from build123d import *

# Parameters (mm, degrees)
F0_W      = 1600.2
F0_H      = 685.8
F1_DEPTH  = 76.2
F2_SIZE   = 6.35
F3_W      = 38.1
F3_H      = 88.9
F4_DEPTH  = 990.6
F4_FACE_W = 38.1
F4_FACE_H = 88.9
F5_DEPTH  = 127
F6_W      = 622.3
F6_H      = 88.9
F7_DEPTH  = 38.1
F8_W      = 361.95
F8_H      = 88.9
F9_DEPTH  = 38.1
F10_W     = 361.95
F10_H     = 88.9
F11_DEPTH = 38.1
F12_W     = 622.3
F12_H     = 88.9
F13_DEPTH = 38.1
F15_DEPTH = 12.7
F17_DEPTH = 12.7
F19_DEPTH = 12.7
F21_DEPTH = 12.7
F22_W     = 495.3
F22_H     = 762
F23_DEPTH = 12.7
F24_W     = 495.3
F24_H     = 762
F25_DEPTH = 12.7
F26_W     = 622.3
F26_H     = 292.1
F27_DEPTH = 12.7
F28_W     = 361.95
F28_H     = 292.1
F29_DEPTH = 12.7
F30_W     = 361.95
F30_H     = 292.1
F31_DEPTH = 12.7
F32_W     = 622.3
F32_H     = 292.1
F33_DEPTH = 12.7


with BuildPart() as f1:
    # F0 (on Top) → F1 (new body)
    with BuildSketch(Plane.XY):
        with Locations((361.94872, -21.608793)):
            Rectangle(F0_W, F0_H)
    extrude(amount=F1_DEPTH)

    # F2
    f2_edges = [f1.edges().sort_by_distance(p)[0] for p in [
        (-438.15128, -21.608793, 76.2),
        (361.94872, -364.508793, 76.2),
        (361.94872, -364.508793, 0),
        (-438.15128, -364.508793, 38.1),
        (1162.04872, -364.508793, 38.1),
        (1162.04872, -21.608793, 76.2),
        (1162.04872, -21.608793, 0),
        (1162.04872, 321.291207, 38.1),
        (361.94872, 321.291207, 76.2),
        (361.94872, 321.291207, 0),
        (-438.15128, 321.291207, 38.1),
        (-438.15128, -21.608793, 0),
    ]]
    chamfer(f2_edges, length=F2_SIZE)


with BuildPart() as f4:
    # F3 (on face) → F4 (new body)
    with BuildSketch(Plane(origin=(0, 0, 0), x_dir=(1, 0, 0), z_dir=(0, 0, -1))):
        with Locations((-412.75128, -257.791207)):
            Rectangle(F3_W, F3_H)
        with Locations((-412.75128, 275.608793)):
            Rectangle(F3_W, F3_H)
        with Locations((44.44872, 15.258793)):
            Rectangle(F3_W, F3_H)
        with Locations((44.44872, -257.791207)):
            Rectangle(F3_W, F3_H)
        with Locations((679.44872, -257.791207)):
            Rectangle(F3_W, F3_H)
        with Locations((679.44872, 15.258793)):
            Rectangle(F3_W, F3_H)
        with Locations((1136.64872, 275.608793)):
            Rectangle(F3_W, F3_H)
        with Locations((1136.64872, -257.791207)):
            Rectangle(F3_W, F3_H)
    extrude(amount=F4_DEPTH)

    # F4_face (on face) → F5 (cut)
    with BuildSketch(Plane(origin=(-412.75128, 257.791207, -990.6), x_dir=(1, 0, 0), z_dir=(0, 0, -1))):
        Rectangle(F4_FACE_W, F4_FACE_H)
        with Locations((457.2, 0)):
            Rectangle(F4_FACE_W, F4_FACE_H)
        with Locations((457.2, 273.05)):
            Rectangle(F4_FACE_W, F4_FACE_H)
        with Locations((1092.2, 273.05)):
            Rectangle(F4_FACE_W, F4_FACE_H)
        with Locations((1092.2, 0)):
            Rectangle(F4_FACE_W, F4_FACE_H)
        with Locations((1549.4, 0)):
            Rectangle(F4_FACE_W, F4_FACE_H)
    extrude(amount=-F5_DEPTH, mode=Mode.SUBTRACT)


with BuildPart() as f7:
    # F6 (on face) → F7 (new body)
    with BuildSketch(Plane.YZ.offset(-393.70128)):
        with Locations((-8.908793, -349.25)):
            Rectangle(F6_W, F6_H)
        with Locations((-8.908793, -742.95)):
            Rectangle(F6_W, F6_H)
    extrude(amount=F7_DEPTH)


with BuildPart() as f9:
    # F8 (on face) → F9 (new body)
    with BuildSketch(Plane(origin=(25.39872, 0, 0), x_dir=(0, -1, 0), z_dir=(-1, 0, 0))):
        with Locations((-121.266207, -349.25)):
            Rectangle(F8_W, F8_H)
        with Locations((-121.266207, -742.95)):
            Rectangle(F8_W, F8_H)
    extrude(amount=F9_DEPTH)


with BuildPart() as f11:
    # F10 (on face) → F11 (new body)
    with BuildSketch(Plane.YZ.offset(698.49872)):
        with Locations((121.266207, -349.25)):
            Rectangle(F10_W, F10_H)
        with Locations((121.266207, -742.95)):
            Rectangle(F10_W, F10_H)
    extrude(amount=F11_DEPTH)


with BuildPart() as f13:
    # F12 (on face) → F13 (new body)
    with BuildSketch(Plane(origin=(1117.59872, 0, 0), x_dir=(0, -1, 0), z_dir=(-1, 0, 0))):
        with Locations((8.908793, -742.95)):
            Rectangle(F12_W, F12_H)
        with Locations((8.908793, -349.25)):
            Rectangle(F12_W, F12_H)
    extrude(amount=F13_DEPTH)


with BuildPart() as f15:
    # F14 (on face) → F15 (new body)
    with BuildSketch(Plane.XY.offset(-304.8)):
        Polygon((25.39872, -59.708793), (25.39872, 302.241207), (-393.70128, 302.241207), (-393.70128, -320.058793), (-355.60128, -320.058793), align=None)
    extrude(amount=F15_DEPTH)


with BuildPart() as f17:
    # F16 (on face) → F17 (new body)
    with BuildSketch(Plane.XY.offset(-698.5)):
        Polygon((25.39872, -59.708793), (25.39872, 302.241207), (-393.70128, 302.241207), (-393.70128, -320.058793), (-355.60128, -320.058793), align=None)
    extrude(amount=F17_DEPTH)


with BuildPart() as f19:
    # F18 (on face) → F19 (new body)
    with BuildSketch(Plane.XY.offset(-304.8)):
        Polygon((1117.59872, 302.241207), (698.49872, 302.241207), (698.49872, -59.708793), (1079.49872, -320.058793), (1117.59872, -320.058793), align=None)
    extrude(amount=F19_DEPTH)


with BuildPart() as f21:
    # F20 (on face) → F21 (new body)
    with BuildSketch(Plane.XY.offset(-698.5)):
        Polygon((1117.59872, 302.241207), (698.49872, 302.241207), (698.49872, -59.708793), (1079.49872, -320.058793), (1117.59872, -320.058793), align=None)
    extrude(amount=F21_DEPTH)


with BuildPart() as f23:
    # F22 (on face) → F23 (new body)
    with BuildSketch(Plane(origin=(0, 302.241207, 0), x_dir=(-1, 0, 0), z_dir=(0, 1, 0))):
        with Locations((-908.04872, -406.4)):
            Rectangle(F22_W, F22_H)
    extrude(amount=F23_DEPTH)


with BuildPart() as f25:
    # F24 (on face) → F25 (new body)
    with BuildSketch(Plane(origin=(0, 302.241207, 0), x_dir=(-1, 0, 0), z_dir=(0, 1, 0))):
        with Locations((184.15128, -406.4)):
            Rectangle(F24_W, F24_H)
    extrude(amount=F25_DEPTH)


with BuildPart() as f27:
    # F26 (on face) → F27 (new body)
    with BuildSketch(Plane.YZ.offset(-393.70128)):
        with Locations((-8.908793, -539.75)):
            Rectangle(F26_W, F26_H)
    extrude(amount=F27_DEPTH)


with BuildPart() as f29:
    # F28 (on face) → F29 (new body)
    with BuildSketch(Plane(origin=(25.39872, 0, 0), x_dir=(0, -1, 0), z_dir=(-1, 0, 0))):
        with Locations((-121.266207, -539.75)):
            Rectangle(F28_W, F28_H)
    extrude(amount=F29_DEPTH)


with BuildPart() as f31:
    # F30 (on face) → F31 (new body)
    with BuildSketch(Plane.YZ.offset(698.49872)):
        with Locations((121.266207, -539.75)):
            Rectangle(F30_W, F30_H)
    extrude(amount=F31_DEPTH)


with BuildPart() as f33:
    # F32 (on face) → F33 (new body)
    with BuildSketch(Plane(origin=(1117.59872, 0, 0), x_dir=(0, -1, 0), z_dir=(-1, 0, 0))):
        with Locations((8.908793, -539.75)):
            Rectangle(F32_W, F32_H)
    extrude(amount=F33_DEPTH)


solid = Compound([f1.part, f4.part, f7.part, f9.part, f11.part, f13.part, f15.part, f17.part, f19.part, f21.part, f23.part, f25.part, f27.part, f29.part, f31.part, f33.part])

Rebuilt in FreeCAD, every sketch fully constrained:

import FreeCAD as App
import Part
import Sketcher
Q = App.Units.Quantity

doc = App.newDocument("Part")
body = doc.addObject("PartDesign::Body", "Body")

# Sketch on XY plane
sketch1 = doc.addObject("Sketcher::SketchObject", "Sketch")
body.addObject(sketch1)
sketch1.AttachmentSupport = (doc.XY_Plane, [""])
sketch1.MapMode = "FlatFace"
sketch1.addGeometry(Part.LineSegment(App.Vector(-438, 321, 0), App.Vector(-438, -365, 0)), False)
sketch1.addGeometry(Part.LineSegment(App.Vector(-438, -365, 0), App.Vector(1162, -365, 0)), False)
sketch1.addGeometry(Part.LineSegment(App.Vector(1162, -365, 0), App.Vector(1162, 321, 0)), False)
sketch1.addGeometry(Part.LineSegment(App.Vector(1162, 321, 0), App.Vector(-438, 321, 0)), False)
sketch1.addConstraint(Sketcher.Constraint("Coincident", 0, 2, 1, 1))
sketch1.addConstraint(Sketcher.Constraint("Coincident", 1, 2, 2, 1))
sketch1.addConstraint(Sketcher.Constraint("Coincident", 2, 2, 3, 1))
sketch1.addConstraint(Sketcher.Constraint("Coincident", 3, 2, 0, 1))
sketch1.addConstraint(Sketcher.Constraint("Vertical", 0))
sketch1.addConstraint(Sketcher.Constraint("Horizontal", 1))
sketch1.addConstraint(Sketcher.Constraint("Vertical", 2))
sketch1.addConstraint(Sketcher.Constraint("Horizontal", 3))
sketch1.addConstraint(Sketcher.Constraint("DistanceX", 1, 1, 1, 2, Q("63 in")))
sketch1.addConstraint(Sketcher.Constraint("DistanceY", 0, 2, 0, 1, Q("27 in")))
sketch1.addConstraint(Sketcher.Constraint("DistanceX", 0, 2, -1, 1, 438.15128))
sketch1.addConstraint(Sketcher.Constraint("DistanceY", 0, 2, -1, 1, 364.508793))
pad1 = doc.addObject("PartDesign::Pad", "Pad")
body.addObject(pad1)
pad1.Profile = sketch1
pad1.Length = Q("3 in")
doc.recompute()

chamfer = doc.addObject("PartDesign::Chamfer", "Chamfer")
body.addObject(chamfer)
chamfer.Base = (pad1, ["Edge1"])
chamfer.UseAllEdges = True
chamfer.Size = Q("0.25 in")
body2 = doc.addObject("PartDesign::Body", "Body001")
body2.AllowCompound = True

# Sketch on XY plane
sketch2 = doc.addObject("Sketcher::SketchObject", "Sketch001")
body2.addObject(sketch2)
sketch2.AttachmentSupport = (doc.getObject("XY_Plane001"), [""])
sketch2.MapMode = "FlatFace"
sketch2.addGeometry(Part.LineSegment(App.Vector(-432, 213, 0), App.Vector(-432, 302, 0)), False)
sketch2.addGeometry(Part.LineSegment(App.Vector(-432, 302, 0), App.Vector(-394, 302, 0)), False)
sketch2.addGeometry(Part.LineSegment(App.Vector(-394, 302, 0), App.Vector(-394, 213, 0)), False)
sketch2.addGeometry(Part.LineSegment(App.Vector(-394, 213, 0), App.Vector(-432, 213, 0)), False)
sketch2.addGeometry(Part.LineSegment(App.Vector(-432, -320, 0), App.Vector(-432, -231, 0)), False)
sketch2.addGeometry(Part.LineSegment(App.Vector(-432, -231, 0), App.Vector(-394, -231, 0)), False)
sketch2.addGeometry(Part.LineSegment(App.Vector(-394, -231, 0), App.Vector(-394, -320, 0)), False)
sketch2.addGeometry(Part.LineSegment(App.Vector(-394, -320, 0), App.Vector(-432, -320, 0)), False)
sketch2.addGeometry(Part.LineSegment(App.Vector(25, -60, 0), App.Vector(25, 29, 0)), False)
sketch2.addGeometry(Part.LineSegment(App.Vector(25, 29, 0), App.Vector(63, 29, 0)), False)
sketch2.addGeometry(Part.LineSegment(App.Vector(63, 29, 0), App.Vector(63, -60, 0)), False)
sketch2.addGeometry(Part.LineSegment(App.Vector(63, -60, 0), App.Vector(25, -60, 0)), False)
sketch2.addGeometry(Part.LineSegment(App.Vector(25, 213, 0), App.Vector(25, 302, 0)), False)
sketch2.addGeometry(Part.LineSegment(App.Vector(25, 302, 0), App.Vector(63, 302, 0)), False)
sketch2.addGeometry(Part.LineSegment(App.Vector(63, 302, 0), App.Vector(63, 213, 0)), False)
sketch2.addGeometry(Part.LineSegment(App.Vector(63, 213, 0), App.Vector(25, 213, 0)), False)
sketch2.addGeometry(Part.LineSegment(App.Vector(660, 213, 0), App.Vector(660, 302, 0)), False)
sketch2.addGeometry(Part.LineSegment(App.Vector(660, 302, 0), App.Vector(698, 302, 0)), False)
sketch2.addGeometry(Part.LineSegment(App.Vector(698, 302, 0), App.Vector(698, 213, 0)), False)
sketch2.addGeometry(Part.LineSegment(App.Vector(698, 213, 0), App.Vector(660, 213, 0)), False)
sketch2.addGeometry(Part.LineSegment(App.Vector(660, -60, 0), App.Vector(660, 29, 0)), False)
sketch2.addGeometry(Part.LineSegment(App.Vector(660, 29, 0), App.Vector(698, 29, 0)), False)
sketch2.addGeometry(Part.LineSegment(App.Vector(698, 29, 0), App.Vector(698, -60, 0)), False)
sketch2.addGeometry(Part.LineSegment(App.Vector(698, -60, 0), App.Vector(660, -60, 0)), False)
sketch2.addGeometry(Part.LineSegment(App.Vector(1118, -320, 0), App.Vector(1118, -231, 0)), False)
sketch2.addGeometry(Part.LineSegment(App.Vector(1118, -231, 0), App.Vector(1156, -231, 0)), False)
sketch2.addGeometry(Part.LineSegment(App.Vector(1156, -231, 0), App.Vector(1156, -320, 0)), False)
sketch2.addGeometry(Part.LineSegment(App.Vector(1156, -320, 0), App.Vector(1118, -320, 0)), False)
sketch2.addGeometry(Part.LineSegment(App.Vector(1118, 213, 0), App.Vector(1118, 302, 0)), False)
sketch2.addGeometry(Part.LineSegment(App.Vector(1118, 302, 0), App.Vector(1156, 302, 0)), False)
sketch2.addGeometry(Part.LineSegment(App.Vector(1156, 302, 0), App.Vector(1156, 213, 0)), False)
sketch2.addGeometry(Part.LineSegment(App.Vector(1156, 213, 0), App.Vector(1118, 213, 0)), False)
sketch2.addConstraint(Sketcher.Constraint("Coincident", 0, 2, 1, 1))
sketch2.addConstraint(Sketcher.Constraint("Coincident", 1, 2, 2, 1))
sketch2.addConstraint(Sketcher.Constraint("Coincident", 2, 2, 3, 1))
sketch2.addConstraint(Sketcher.Constraint("Coincident", 3, 2, 0, 1))
sketch2.addConstraint(Sketcher.Constraint("Coincident", 4, 2, 5, 1))
sketch2.addConstraint(Sketcher.Constraint("Coincident", 5, 2, 6, 1))
sketch2.addConstraint(Sketcher.Constraint("Coincident", 6, 2, 7, 1))
sketch2.addConstraint(Sketcher.Constraint("Coincident", 7, 2, 4, 1))
sketch2.addConstraint(Sketcher.Constraint("Coincident", 8, 2, 9, 1))
sketch2.addConstraint(Sketcher.Constraint("Coincident", 9, 2, 10, 1))
sketch2.addConstraint(Sketcher.Constraint("Coincident", 10, 2, 11, 1))
sketch2.addConstraint(Sketcher.Constraint("Coincident", 11, 2, 8, 1))
sketch2.addConstraint(Sketcher.Constraint("Coincident", 12, 2, 13, 1))
sketch2.addConstraint(Sketcher.Constraint("Coincident", 13, 2, 14, 1))
sketch2.addConstraint(Sketcher.Constraint("Coincident", 14, 2, 15, 1))
sketch2.addConstraint(Sketcher.Constraint("Coincident", 15, 2, 12, 1))
sketch2.addConstraint(Sketcher.Constraint("Coincident", 16, 2, 17, 1))
sketch2.addConstraint(Sketcher.Constraint("Coincident", 17, 2, 18, 1))
sketch2.addConstraint(Sketcher.Constraint("Coincident", 18, 2, 19, 1))
sketch2.addConstraint(Sketcher.Constraint("Coincident", 19, 2, 16, 1))
sketch2.addConstraint(Sketcher.Constraint("Coincident", 20, 2, 21, 1))
sketch2.addConstraint(Sketcher.Constraint("Coincident", 21, 2, 22, 1))
sketch2.addConstraint(Sketcher.Constraint("Coincident", 22, 2, 23, 1))
sketch2.addConstraint(Sketcher.Constraint("Coincident", 23, 2, 20, 1))
sketch2.addConstraint(Sketcher.Constraint("Coincident", 24, 2, 25, 1))
sketch2.addConstraint(Sketcher.Constraint("Coincident", 25, 2, 26, 1))
sketch2.addConstraint(Sketcher.Constraint("Coincident", 26, 2, 27, 1))
sketch2.addConstraint(Sketcher.Constraint("Coincident", 27, 2, 24, 1))
sketch2.addConstraint(Sketcher.Constraint("Coincident", 28, 2, 29, 1))
sketch2.addConstraint(Sketcher.Constraint("Coincident", 29, 2, 30, 1))
sketch2.addConstraint(Sketcher.Constraint("Coincident", 30, 2, 31, 1))
sketch2.addConstraint(Sketcher.Constraint("Coincident", 31, 2, 28, 1))
sketch2.addConstraint(Sketcher.Constraint("Vertical", 0))
sketch2.addConstraint(Sketcher.Constraint("Horizontal", 1))
sketch2.addConstraint(Sketcher.Constraint("Vertical", 2))
sketch2.addConstraint(Sketcher.Constraint("Horizontal", 3))
sketch2.addConstraint(Sketcher.Constraint("Vertical", 4))
sketch2.addConstraint(Sketcher.Constraint("Horizontal", 5))
sketch2.addConstraint(Sketcher.Constraint("Vertical", 6))
sketch2.addConstraint(Sketcher.Constraint("Horizontal", 7))
sketch2.addConstraint(Sketcher.Constraint("Vertical", 8))
sketch2.addConstraint(Sketcher.Constraint("Horizontal", 9))
sketch2.addConstraint(Sketcher.Constraint("Vertical", 10))
sketch2.addConstraint(Sketcher.Constraint("Horizontal", 11))
sketch2.addConstraint(Sketcher.Constraint("Vertical", 12))
sketch2.addConstraint(Sketcher.Constraint("Horizontal", 13))
sketch2.addConstraint(Sketcher.Constraint("Vertical", 14))
sketch2.addConstraint(Sketcher.Constraint("Horizontal", 15))
sketch2.addConstraint(Sketcher.Constraint("Vertical", 16))
sketch2.addConstraint(Sketcher.Constraint("Horizontal", 17))
sketch2.addConstraint(Sketcher.Constraint("Vertical", 18))
sketch2.addConstraint(Sketcher.Constraint("Horizontal", 19))
sketch2.addConstraint(Sketcher.Constraint("Vertical", 20))
sketch2.addConstraint(Sketcher.Constraint("Horizontal", 21))
sketch2.addConstraint(Sketcher.Constraint("Vertical", 22))
sketch2.addConstraint(Sketcher.Constraint("Horizontal", 23))
sketch2.addConstraint(Sketcher.Constraint("Vertical", 24))
sketch2.addConstraint(Sketcher.Constraint("Horizontal", 25))
sketch2.addConstraint(Sketcher.Constraint("Vertical", 26))
sketch2.addConstraint(Sketcher.Constraint("Horizontal", 27))
sketch2.addConstraint(Sketcher.Constraint("Vertical", 28))
sketch2.addConstraint(Sketcher.Constraint("Horizontal", 29))
sketch2.addConstraint(Sketcher.Constraint("Vertical", 30))
sketch2.addConstraint(Sketcher.Constraint("Horizontal", 31))
sketch2.addConstraint(Sketcher.Constraint("Horizontal", 1, 2, 12, 2))
sketch2.addConstraint(Sketcher.Constraint("Horizontal", 3, 2, 14, 2))
sketch2.addConstraint(Sketcher.Constraint("Horizontal", 13, 2, 16, 2))
sketch2.addConstraint(Sketcher.Constraint("Horizontal", 15, 2, 18, 2))
sketch2.addConstraint(Sketcher.Constraint("Horizontal", 9, 2, 20, 2))
sketch2.addConstraint(Sketcher.Constraint("Horizontal", 11, 2, 22, 2))
sketch2.addConstraint(Sketcher.Constraint("Horizontal", 5, 2, 24, 2))
sketch2.addConstraint(Sketcher.Constraint("Horizontal", 7, 2, 26, 2))
sketch2.addConstraint(Sketcher.Constraint("Horizontal", 17, 2, 28, 2))
sketch2.addConstraint(Sketcher.Constraint("Horizontal", 19, 2, 30, 2))
sketch2.addConstraint(Sketcher.Constraint("Vertical", 3, 2, 4, 2))
sketch2.addConstraint(Sketcher.Constraint("Vertical", 2, 2, 5, 2))
sketch2.addConstraint(Sketcher.Constraint("Vertical", 11, 2, 12, 2))
sketch2.addConstraint(Sketcher.Constraint("Vertical", 10, 2, 13, 2))
sketch2.addConstraint(Sketcher.Constraint("Vertical", 19, 2, 20, 2))
sketch2.addConstraint(Sketcher.Constraint("Vertical", 18, 2, 21, 2))
sketch2.addConstraint(Sketcher.Constraint("Vertical", 27, 2, 28, 2))
sketch2.addConstraint(Sketcher.Constraint("Vertical", 26, 2, 29, 2))
sketch2.addConstraint(Sketcher.Constraint("Equal", 7, 9))
sketch2.addConstraint(Sketcher.Constraint("Equal", 15, 17))
sketch2.addConstraint(Sketcher.Constraint("Equal", 23, 25))
sketch2.addConstraint(Sketcher.Constraint("Equal", 2, 4))
sketch2.addConstraint(Sketcher.Constraint("Equal", 6, 8))
sketch2.addConstraint(Sketcher.Constraint("DistanceX", 1, 1, 1, 2, Q("1.5 in")))
sketch2.addConstraint(Sketcher.Constraint("DistanceY", 0, 1, 0, 2, Q("3.5 in")))
sketch2.addConstraint(Sketcher.Constraint("DistanceY", 4, 2, 0, 2, Q("21 in")))
sketch2.addConstraint(Sketcher.Constraint("DistanceX", 3, 2, 8, 2, Q("18 in")))
sketch2.addConstraint(Sketcher.Constraint("DistanceX", 12, 2, 16, 2, Q("25 in")))
sketch2.addConstraint(Sketcher.Constraint("DistanceX", 23, 2, 24, 2, Q("18 in")))
sketch2.addConstraint(Sketcher.Constraint("DistanceY", 8, 2, 2, 2, Q("7.25 in")))
sketch2.addConstraint(Sketcher.Constraint("DistanceX", 0, 2, -1, 1, 431.80128))
sketch2.addConstraint(Sketcher.Constraint("DistanceY", -1, 1, 0, 2, 302.241207))
pad2 = doc.addObject("PartDesign::Pad", "Pad001")
body2.addObject(pad2)
pad2.Profile = sketch2
pad2.Length = Q("39 in")
pad2.Reversed = True

# Sketch on XY plane
sketch3 = doc.addObject("Sketcher::SketchObject", "Sketch002")
body2.addObject(sketch3)
sketch3.AttachmentSupport = (doc.getObject("XY_Plane001"), [""])
sketch3.MapMode = "FlatFace"
sketch3.AttachmentOffset = App.Placement(App.Vector(0, 0, -39 * 25.4), App.Rotation())
sketch3.addGeometry(Part.LineSegment(App.Vector(-432, 213, 0), App.Vector(-432, 302, 0)), False)
sketch3.addGeometry(Part.LineSegment(App.Vector(-432, 302, 0), App.Vector(-394, 302, 0)), False)
sketch3.addGeometry(Part.LineSegment(App.Vector(-394, 302, 0), App.Vector(-394, 213, 0)), False)
sketch3.addGeometry(Part.LineSegment(App.Vector(-394, 213, 0), App.Vector(-432, 213, 0)), False)
sketch3.addGeometry(Part.LineSegment(App.Vector(25, 213, 0), App.Vector(25, 302, 0)), False)
sketch3.addGeometry(Part.LineSegment(App.Vector(25, 302, 0), App.Vector(63, 302, 0)), False)
sketch3.addGeometry(Part.LineSegment(App.Vector(63, 302, 0), App.Vector(63, 213, 0)), False)
sketch3.addGeometry(Part.LineSegment(App.Vector(63, 213, 0), App.Vector(25, 213, 0)), False)
sketch3.addGeometry(Part.LineSegment(App.Vector(25, -60, 0), App.Vector(25, 29, 0)), False)
sketch3.addGeometry(Part.LineSegment(App.Vector(25, 29, 0), App.Vector(63, 29, 0)), False)
sketch3.addGeometry(Part.LineSegment(App.Vector(63, 29, 0), App.Vector(63, -60, 0)), False)
sketch3.addGeometry(Part.LineSegment(App.Vector(63, -60, 0), App.Vector(25, -60, 0)), False)
sketch3.addGeometry(Part.LineSegment(App.Vector(660, -60, 0), App.Vector(660, 29, 0)), False)
sketch3.addGeometry(Part.LineSegment(App.Vector(660, 29, 0), App.Vector(698, 29, 0)), False)
sketch3.addGeometry(Part.LineSegment(App.Vector(698, 29, 0), App.Vector(698, -60, 0)), False)
sketch3.addGeometry(Part.LineSegment(App.Vector(698, -60, 0), App.Vector(660, -60, 0)), False)
sketch3.addGeometry(Part.LineSegment(App.Vector(660, 213, 0), App.Vector(660, 302, 0)), False)
sketch3.addGeometry(Part.LineSegment(App.Vector(660, 302, 0), App.Vector(698, 302, 0)), False)
sketch3.addGeometry(Part.LineSegment(App.Vector(698, 302, 0), App.Vector(698, 213, 0)), False)
sketch3.addGeometry(Part.LineSegment(App.Vector(698, 213, 0), App.Vector(660, 213, 0)), False)
sketch3.addGeometry(Part.LineSegment(App.Vector(1118, 213, 0), App.Vector(1118, 302, 0)), False)
sketch3.addGeometry(Part.LineSegment(App.Vector(1118, 302, 0), App.Vector(1156, 302, 0)), False)
sketch3.addGeometry(Part.LineSegment(App.Vector(1156, 302, 0), App.Vector(1156, 213, 0)), False)
sketch3.addGeometry(Part.LineSegment(App.Vector(1156, 213, 0), App.Vector(1118, 213, 0)), False)
sketch3.addConstraint(Sketcher.Constraint("Coincident", 0, 2, 1, 1))
sketch3.addConstraint(Sketcher.Constraint("Coincident", 1, 2, 2, 1))
sketch3.addConstraint(Sketcher.Constraint("Coincident", 2, 2, 3, 1))
sketch3.addConstraint(Sketcher.Constraint("Coincident", 3, 2, 0, 1))
sketch3.addConstraint(Sketcher.Constraint("Coincident", 4, 2, 5, 1))
sketch3.addConstraint(Sketcher.Constraint("Coincident", 5, 2, 6, 1))
sketch3.addConstraint(Sketcher.Constraint("Coincident", 6, 2, 7, 1))
sketch3.addConstraint(Sketcher.Constraint("Coincident", 7, 2, 4, 1))
sketch3.addConstraint(Sketcher.Constraint("Coincident", 8, 2, 9, 1))
sketch3.addConstraint(Sketcher.Constraint("Coincident", 9, 2, 10, 1))
sketch3.addConstraint(Sketcher.Constraint("Coincident", 10, 2, 11, 1))
sketch3.addConstraint(Sketcher.Constraint("Coincident", 11, 2, 8, 1))
sketch3.addConstraint(Sketcher.Constraint("Coincident", 12, 2, 13, 1))
sketch3.addConstraint(Sketcher.Constraint("Coincident", 13, 2, 14, 1))
sketch3.addConstraint(Sketcher.Constraint("Coincident", 14, 2, 15, 1))
sketch3.addConstraint(Sketcher.Constraint("Coincident", 15, 2, 12, 1))
sketch3.addConstraint(Sketcher.Constraint("Coincident", 16, 2, 17, 1))
sketch3.addConstraint(Sketcher.Constraint("Coincident", 17, 2, 18, 1))
sketch3.addConstraint(Sketcher.Constraint("Coincident", 18, 2, 19, 1))
sketch3.addConstraint(Sketcher.Constraint("Coincident", 19, 2, 16, 1))
sketch3.addConstraint(Sketcher.Constraint("Coincident", 20, 2, 21, 1))
sketch3.addConstraint(Sketcher.Constraint("Coincident", 21, 2, 22, 1))
sketch3.addConstraint(Sketcher.Constraint("Coincident", 22, 2, 23, 1))
sketch3.addConstraint(Sketcher.Constraint("Coincident", 23, 2, 20, 1))
sketch3.addConstraint(Sketcher.Constraint("Vertical", 0))
sketch3.addConstraint(Sketcher.Constraint("Horizontal", 1))
sketch3.addConstraint(Sketcher.Constraint("Vertical", 2))
sketch3.addConstraint(Sketcher.Constraint("Horizontal", 3))
sketch3.addConstraint(Sketcher.Constraint("Vertical", 4))
sketch3.addConstraint(Sketcher.Constraint("Horizontal", 5))
sketch3.addConstraint(Sketcher.Constraint("Vertical", 6))
sketch3.addConstraint(Sketcher.Constraint("Horizontal", 7))
sketch3.addConstraint(Sketcher.Constraint("Vertical", 8))
sketch3.addConstraint(Sketcher.Constraint("Horizontal", 9))
sketch3.addConstraint(Sketcher.Constraint("Vertical", 10))
sketch3.addConstraint(Sketcher.Constraint("Horizontal", 11))
sketch3.addConstraint(Sketcher.Constraint("Vertical", 12))
sketch3.addConstraint(Sketcher.Constraint("Horizontal", 13))
sketch3.addConstraint(Sketcher.Constraint("Vertical", 14))
sketch3.addConstraint(Sketcher.Constraint("Horizontal", 15))
sketch3.addConstraint(Sketcher.Constraint("Vertical", 16))
sketch3.addConstraint(Sketcher.Constraint("Horizontal", 17))
sketch3.addConstraint(Sketcher.Constraint("Vertical", 18))
sketch3.addConstraint(Sketcher.Constraint("Horizontal", 19))
sketch3.addConstraint(Sketcher.Constraint("Vertical", 20))
sketch3.addConstraint(Sketcher.Constraint("Horizontal", 21))
sketch3.addConstraint(Sketcher.Constraint("Vertical", 22))
sketch3.addConstraint(Sketcher.Constraint("Horizontal", 23))
sketch3.addConstraint(Sketcher.Constraint("Horizontal", 1, 2, 4, 2))
sketch3.addConstraint(Sketcher.Constraint("Horizontal", 3, 2, 6, 2))
sketch3.addConstraint(Sketcher.Constraint("Horizontal", 9, 2, 12, 2))
sketch3.addConstraint(Sketcher.Constraint("Horizontal", 11, 2, 14, 2))
sketch3.addConstraint(Sketcher.Constraint("Horizontal", 5, 2, 16, 2))
sketch3.addConstraint(Sketcher.Constraint("Horizontal", 7, 2, 18, 2))
sketch3.addConstraint(Sketcher.Constraint("Horizontal", 17, 2, 20, 2))
sketch3.addConstraint(Sketcher.Constraint("Horizontal", 19, 2, 22, 2))
sketch3.addConstraint(Sketcher.Constraint("Vertical", 7, 2, 8, 2))
sketch3.addConstraint(Sketcher.Constraint("Vertical", 6, 2, 9, 2))
sketch3.addConstraint(Sketcher.Constraint("Vertical", 15, 2, 16, 2))
sketch3.addConstraint(Sketcher.Constraint("Vertical", 14, 2, 17, 2))
sketch3.addConstraint(Sketcher.Constraint("Equal", 3, 5))
sketch3.addConstraint(Sketcher.Constraint("Equal", 11, 13))
sketch3.addConstraint(Sketcher.Constraint("Equal", 19, 21))
sketch3.addConstraint(Sketcher.Constraint("Equal", 6, 8))
sketch3.addConstraint(Sketcher.Constraint("DistanceX", 1, 1, 1, 2, Q("1.5 in")))
sketch3.addConstraint(Sketcher.Constraint("DistanceY", 0, 1, 0, 2, Q("3.5 in")))
sketch3.addConstraint(Sketcher.Constraint("DistanceX", 0, 2, 4, 2, Q("18 in")))
sketch3.addConstraint(Sketcher.Constraint("DistanceX", 8, 2, 12, 2, Q("25 in")))
sketch3.addConstraint(Sketcher.Constraint("DistanceX", 16, 2, 20, 2, Q("18 in")))
sketch3.addConstraint(Sketcher.Constraint("DistanceY", 8, 2, 7, 2, Q("7.25 in")))
sketch3.addConstraint(Sketcher.Constraint("DistanceX", 0, 2, -1, 1, 431.80128))
sketch3.addConstraint(Sketcher.Constraint("DistanceY", -1, 1, 0, 2, 302.241207))
pocket1 = doc.addObject("PartDesign::Pocket", "Pocket")
body2.addObject(pocket1)
pocket1.Profile = sketch3
pocket1.Length = Q("5 in")
pocket1.Reversed = True
body3 = doc.addObject("PartDesign::Body", "Body002")
body3.AllowCompound = True

# Sketch on YZ plane
sketch4 = doc.addObject("Sketcher::SketchObject", "Sketch003")
body3.addObject(sketch4)
sketch4.AttachmentSupport = (doc.getObject("YZ_Plane002"), [""])
sketch4.MapMode = "FlatFace"
sketch4.AttachmentOffset = App.Placement(App.Vector(0, 0, -393.70128), App.Rotation())
sketch4.addGeometry(Part.LineSegment(App.Vector(-320, -305, 0), App.Vector(-320, -394, 0)), False)
sketch4.addGeometry(Part.LineSegment(App.Vector(-320, -394, 0), App.Vector(302, -394, 0)), False)
sketch4.addGeometry(Part.LineSegment(App.Vector(302, -394, 0), App.Vector(302, -305, 0)), False)
sketch4.addGeometry(Part.LineSegment(App.Vector(302, -305, 0), App.Vector(-320, -305, 0)), False)
sketch4.addGeometry(Part.LineSegment(App.Vector(-320, -698, 0), App.Vector(-320, -787, 0)), False)
sketch4.addGeometry(Part.LineSegment(App.Vector(-320, -787, 0), App.Vector(302, -787, 0)), False)
sketch4.addGeometry(Part.LineSegment(App.Vector(302, -787, 0), App.Vector(302, -698, 0)), False)
sketch4.addGeometry(Part.LineSegment(App.Vector(302, -698, 0), App.Vector(-320, -698, 0)), False)
sketch4.addConstraint(Sketcher.Constraint("Coincident", 0, 2, 1, 1))
sketch4.addConstraint(Sketcher.Constraint("Coincident", 1, 2, 2, 1))
sketch4.addConstraint(Sketcher.Constraint("Coincident", 2, 2, 3, 1))
sketch4.addConstraint(Sketcher.Constraint("Coincident", 3, 2, 0, 1))
sketch4.addConstraint(Sketcher.Constraint("Coincident", 4, 2, 5, 1))
sketch4.addConstraint(Sketcher.Constraint("Coincident", 5, 2, 6, 1))
sketch4.addConstraint(Sketcher.Constraint("Coincident", 6, 2, 7, 1))
sketch4.addConstraint(Sketcher.Constraint("Coincident", 7, 2, 4, 1))
sketch4.addConstraint(Sketcher.Constraint("Vertical", 0))
sketch4.addConstraint(Sketcher.Constraint("Horizontal", 1))
sketch4.addConstraint(Sketcher.Constraint("Vertical", 2))
sketch4.addConstraint(Sketcher.Constraint("Horizontal", 3))
sketch4.addConstraint(Sketcher.Constraint("Vertical", 4))
sketch4.addConstraint(Sketcher.Constraint("Horizontal", 5))
sketch4.addConstraint(Sketcher.Constraint("Vertical", 6))
sketch4.addConstraint(Sketcher.Constraint("Horizontal", 7))
sketch4.addConstraint(Sketcher.Constraint("Vertical", 3, 2, 4, 2))
sketch4.addConstraint(Sketcher.Constraint("Vertical", 2, 2, 5, 2))
sketch4.addConstraint(Sketcher.Constraint("Equal", 2, 4))
sketch4.addConstraint(Sketcher.Constraint("DistanceX", 1, 1, 1, 2, Q("24.5 in")))
sketch4.addConstraint(Sketcher.Constraint("DistanceY", 0, 2, 0, 1, Q("3.5 in")))
sketch4.addConstraint(Sketcher.Constraint("DistanceY", 2, 2, -1, 1, Q("12 in")))
sketch4.addConstraint(Sketcher.Constraint("DistanceY", 4, 2, -1, 1, Q("31 in")))
sketch4.addConstraint(Sketcher.Constraint("DistanceX", 0, 2, -1, 1, 320.058793))
pad3 = doc.addObject("PartDesign::Pad", "Pad002")
body3.addObject(pad3)
pad3.Profile = sketch4
pad3.Length = Q("1.5 in")
body4 = doc.addObject("PartDesign::Body", "Body003")
body4.AllowCompound = True

# Sketch on YZ plane
sketch5 = doc.addObject("Sketcher::SketchObject", "Sketch004")
body4.addObject(sketch5)
sketch5.AttachmentSupport = (doc.getObject("YZ_Plane003"), [""])
sketch5.MapMode = "FlatFace"
sketch5.AttachmentOffset = App.Placement(App.Vector(0, 0, 25.39872), App.Rotation())
sketch5.addGeometry(Part.LineSegment(App.Vector(302, -305, 0), App.Vector(302, -394, 0)), False)
sketch5.addGeometry(Part.LineSegment(App.Vector(302, -394, 0), App.Vector(-60, -394, 0)), False)
sketch5.addGeometry(Part.LineSegment(App.Vector(-60, -394, 0), App.Vector(-60, -305, 0)), False)
sketch5.addGeometry(Part.LineSegment(App.Vector(-60, -305, 0), App.Vector(302, -305, 0)), False)
sketch5.addGeometry(Part.LineSegment(App.Vector(302, -698, 0), App.Vector(302, -787, 0)), False)
sketch5.addGeometry(Part.LineSegment(App.Vector(302, -787, 0), App.Vector(-60, -787, 0)), False)
sketch5.addGeometry(Part.LineSegment(App.Vector(-60, -787, 0), App.Vector(-60, -698, 0)), False)
sketch5.addGeometry(Part.LineSegment(App.Vector(-60, -698, 0), App.Vector(302, -698, 0)), False)
sketch5.addConstraint(Sketcher.Constraint("Coincident", 0, 2, 1, 1))
sketch5.addConstraint(Sketcher.Constraint("Coincident", 1, 2, 2, 1))
sketch5.addConstraint(Sketcher.Constraint("Coincident", 2, 2, 3, 1))
sketch5.addConstraint(Sketcher.Constraint("Coincident", 3, 2, 0, 1))
sketch5.addConstraint(Sketcher.Constraint("Coincident", 4, 2, 5, 1))
sketch5.addConstraint(Sketcher.Constraint("Coincident", 5, 2, 6, 1))
sketch5.addConstraint(Sketcher.Constraint("Coincident", 6, 2, 7, 1))
sketch5.addConstraint(Sketcher.Constraint("Coincident", 7, 2, 4, 1))
sketch5.addConstraint(Sketcher.Constraint("Vertical", 0))
sketch5.addConstraint(Sketcher.Constraint("Horizontal", 1))
sketch5.addConstraint(Sketcher.Constraint("Vertical", 2))
sketch5.addConstraint(Sketcher.Constraint("Horizontal", 3))
sketch5.addConstraint(Sketcher.Constraint("Vertical", 4))
sketch5.addConstraint(Sketcher.Constraint("Horizontal", 5))
sketch5.addConstraint(Sketcher.Constraint("Vertical", 6))
sketch5.addConstraint(Sketcher.Constraint("Horizontal", 7))
sketch5.addConstraint(Sketcher.Constraint("Vertical", 3, 2, 4, 2))
sketch5.addConstraint(Sketcher.Constraint("Vertical", 2, 2, 5, 2))
sketch5.addConstraint(Sketcher.Constraint("Equal", 2, 4))
sketch5.addConstraint(Sketcher.Constraint("DistanceY", 0, 2, 0, 1, Q("3.5 in")))
sketch5.addConstraint(Sketcher.Constraint("DistanceY", 2, 2, -1, 1, Q("12 in")))
sketch5.addConstraint(Sketcher.Constraint("DistanceY", 4, 2, -1, 1, Q("31 in")))
sketch5.addConstraint(Sketcher.Constraint("DistanceX", 1, 2, 1, 1, Q("14.25 in")))
sketch5.addConstraint(Sketcher.Constraint("DistanceX", -1, 1, 0, 2, 302.241207))
pad4 = doc.addObject("PartDesign::Pad", "Pad003")
body4.addObject(pad4)
pad4.Profile = sketch5
pad4.Length = Q("1.5 in")
pad4.Reversed = True
body5 = doc.addObject("PartDesign::Body", "Body004")
body5.AllowCompound = True

# Sketch on YZ plane
sketch6 = doc.addObject("Sketcher::SketchObject", "Sketch005")
body5.addObject(sketch6)
sketch6.AttachmentSupport = (doc.getObject("YZ_Plane004"), [""])
sketch6.MapMode = "FlatFace"
sketch6.AttachmentOffset = App.Placement(App.Vector(0, 0, 698.49872), App.Rotation())
sketch6.addGeometry(Part.LineSegment(App.Vector(-60, -305, 0), App.Vector(-60, -394, 0)), False)
sketch6.addGeometry(Part.LineSegment(App.Vector(-60, -394, 0), App.Vector(302, -394, 0)), False)
sketch6.addGeometry(Part.LineSegment(App.Vector(302, -394, 0), App.Vector(302, -305, 0)), False)
sketch6.addGeometry(Part.LineSegment(App.Vector(302, -305, 0), App.Vector(-60, -305, 0)), False)
sketch6.addGeometry(Part.LineSegment(App.Vector(-60, -698, 0), App.Vector(-60, -787, 0)), False)
sketch6.addGeometry(Part.LineSegment(App.Vector(-60, -787, 0), App.Vector(302, -787, 0)), False)
sketch6.addGeometry(Part.LineSegment(App.Vector(302, -787, 0), App.Vector(302, -698, 0)), False)
sketch6.addGeometry(Part.LineSegment(App.Vector(302, -698, 0), App.Vector(-60, -698, 0)), False)
sketch6.addConstraint(Sketcher.Constraint("Coincident", 0, 2, 1, 1))
sketch6.addConstraint(Sketcher.Constraint("Coincident", 1, 2, 2, 1))
sketch6.addConstraint(Sketcher.Constraint("Coincident", 2, 2, 3, 1))
sketch6.addConstraint(Sketcher.Constraint("Coincident", 3, 2, 0, 1))
sketch6.addConstraint(Sketcher.Constraint("Coincident", 4, 2, 5, 1))
sketch6.addConstraint(Sketcher.Constraint("Coincident", 5, 2, 6, 1))
sketch6.addConstraint(Sketcher.Constraint("Coincident", 6, 2, 7, 1))
sketch6.addConstraint(Sketcher.Constraint("Coincident", 7, 2, 4, 1))
sketch6.addConstraint(Sketcher.Constraint("Vertical", 0))
sketch6.addConstraint(Sketcher.Constraint("Horizontal", 1))
sketch6.addConstraint(Sketcher.Constraint("Vertical", 2))
sketch6.addConstraint(Sketcher.Constraint("Horizontal", 3))
sketch6.addConstraint(Sketcher.Constraint("Vertical", 4))
sketch6.addConstraint(Sketcher.Constraint("Horizontal", 5))
sketch6.addConstraint(Sketcher.Constraint("Vertical", 6))
sketch6.addConstraint(Sketcher.Constraint("Horizontal", 7))
sketch6.addConstraint(Sketcher.Constraint("Vertical", 3, 2, 4, 2))
sketch6.addConstraint(Sketcher.Constraint("Vertical", 2, 2, 5, 2))
sketch6.addConstraint(Sketcher.Constraint("Equal", 2, 4))
sketch6.addConstraint(Sketcher.Constraint("DistanceY", 0, 2, 0, 1, Q("3.5 in")))
sketch6.addConstraint(Sketcher.Constraint("DistanceY", 2, 2, -1, 1, Q("12 in")))
sketch6.addConstraint(Sketcher.Constraint("DistanceY", 4, 2, -1, 1, Q("31 in")))
sketch6.addConstraint(Sketcher.Constraint("DistanceX", 1, 1, 1, 2, Q("14.25 in")))
sketch6.addConstraint(Sketcher.Constraint("DistanceX", 0, 2, -1, 1, 59.708793))
pad5 = doc.addObject("PartDesign::Pad", "Pad004")
body5.addObject(pad5)
pad5.Profile = sketch6
pad5.Length = Q("1.5 in")
body6 = doc.addObject("PartDesign::Body", "Body005")
body6.AllowCompound = True

# Sketch on YZ plane
sketch7 = doc.addObject("Sketcher::SketchObject", "Sketch006")
body6.addObject(sketch7)
sketch7.AttachmentSupport = (doc.getObject("YZ_Plane005"), [""])
sketch7.MapMode = "FlatFace"
sketch7.AttachmentOffset = App.Placement(App.Vector(0, 0, 1117.59872), App.Rotation())
sketch7.addGeometry(Part.LineSegment(App.Vector(302, -698, 0), App.Vector(302, -787, 0)), False)
sketch7.addGeometry(Part.LineSegment(App.Vector(302, -787, 0), App.Vector(-320, -787, 0)), False)
sketch7.addGeometry(Part.LineSegment(App.Vector(-320, -787, 0), App.Vector(-320, -698, 0)), False)
sketch7.addGeometry(Part.LineSegment(App.Vector(-320, -698, 0), App.Vector(302, -698, 0)), False)
sketch7.addGeometry(Part.LineSegment(App.Vector(302, -305, 0), App.Vector(302, -394, 0)), False)
sketch7.addGeometry(Part.LineSegment(App.Vector(302, -394, 0), App.Vector(-320, -394, 0)), False)
sketch7.addGeometry(Part.LineSegment(App.Vector(-320, -394, 0), App.Vector(-320, -305, 0)), False)
sketch7.addGeometry(Part.LineSegment(App.Vector(-320, -305, 0), App.Vector(302, -305, 0)), False)
sketch7.addConstraint(Sketcher.Constraint("Coincident", 0, 2, 1, 1))
sketch7.addConstraint(Sketcher.Constraint("Coincident", 1, 2, 2, 1))
sketch7.addConstraint(Sketcher.Constraint("Coincident", 2, 2, 3, 1))
sketch7.addConstraint(Sketcher.Constraint("Coincident", 3, 2, 0, 1))
sketch7.addConstraint(Sketcher.Constraint("Coincident", 4, 2, 5, 1))
sketch7.addConstraint(Sketcher.Constraint("Coincident", 5, 2, 6, 1))
sketch7.addConstraint(Sketcher.Constraint("Coincident", 6, 2, 7, 1))
sketch7.addConstraint(Sketcher.Constraint("Coincident", 7, 2, 4, 1))
sketch7.addConstraint(Sketcher.Constraint("Vertical", 0))
sketch7.addConstraint(Sketcher.Constraint("Horizontal", 1))
sketch7.addConstraint(Sketcher.Constraint("Vertical", 2))
sketch7.addConstraint(Sketcher.Constraint("Horizontal", 3))
sketch7.addConstraint(Sketcher.Constraint("Vertical", 4))
sketch7.addConstraint(Sketcher.Constraint("Horizontal", 5))
sketch7.addConstraint(Sketcher.Constraint("Vertical", 6))
sketch7.addConstraint(Sketcher.Constraint("Horizontal", 7))
sketch7.addConstraint(Sketcher.Constraint("Vertical", 3, 2, 4, 2))
sketch7.addConstraint(Sketcher.Constraint("Vertical", 2, 2, 5, 2))
sketch7.addConstraint(Sketcher.Constraint("Equal", 2, 4))
sketch7.addConstraint(Sketcher.Constraint("DistanceX", 1, 2, 1, 1, Q("24.5 in")))
sketch7.addConstraint(Sketcher.Constraint("DistanceY", 0, 2, 0, 1, Q("3.5 in")))
sketch7.addConstraint(Sketcher.Constraint("DistanceY", 0, 2, -1, 1, Q("31 in")))
sketch7.addConstraint(Sketcher.Constraint("DistanceY", 6, 2, -1, 1, Q("12 in")))
sketch7.addConstraint(Sketcher.Constraint("DistanceX", -1, 1, 0, 2, 302.241207))
pad6 = doc.addObject("PartDesign::Pad", "Pad005")
body6.addObject(pad6)
pad6.Profile = sketch7
pad6.Length = Q("1.5 in")
pad6.Reversed = True
body7 = doc.addObject("PartDesign::Body", "Body006")

# Sketch on XY plane
sketch8 = doc.addObject("Sketcher::SketchObject", "Sketch007")
body7.addObject(sketch8)
sketch8.AttachmentSupport = (doc.getObject("XY_Plane006"), [""])
sketch8.MapMode = "FlatFace"
sketch8.AttachmentOffset = App.Placement(App.Vector(0, 0, -12 * 25.4), App.Rotation())
sketch8.addGeometry(Part.LineSegment(App.Vector(25, -60, 0), App.Vector(25, 302, 0)), False)
sketch8.addGeometry(Part.LineSegment(App.Vector(25, 302, 0), App.Vector(-394, 302, 0)), False)
sketch8.addGeometry(Part.LineSegment(App.Vector(-394, 302, 0), App.Vector(-394, -320, 0)), False)
sketch8.addGeometry(Part.LineSegment(App.Vector(-394, -320, 0), App.Vector(-356, -320, 0)), False)
sketch8.addGeometry(Part.LineSegment(App.Vector(-356, -320, 0), App.Vector(25, -60, 0)), False)
sketch8.addConstraint(Sketcher.Constraint("Coincident", 0, 2, 1, 1))
sketch8.addConstraint(Sketcher.Constraint("Coincident", 1, 2, 2, 1))
sketch8.addConstraint(Sketcher.Constraint("Coincident", 2, 2, 3, 1))
sketch8.addConstraint(Sketcher.Constraint("Coincident", 3, 2, 4, 1))
sketch8.addConstraint(Sketcher.Constraint("Coincident", 4, 2, 0, 1))
sketch8.addConstraint(Sketcher.Constraint("Vertical", 0))
sketch8.addConstraint(Sketcher.Constraint("Horizontal", 1))
sketch8.addConstraint(Sketcher.Constraint("Vertical", 2))
sketch8.addConstraint(Sketcher.Constraint("Horizontal", 3))
sketch8.addConstraint(Sketcher.Constraint("DistanceX", 1, 2, 1, 1, Q("16.5 in")))
sketch8.addConstraint(Sketcher.Constraint("DistanceX", 3, 1, 3, 2, Q("1.5 in")))
sketch8.addConstraint(Sketcher.Constraint("DistanceY", 2, 2, 2, 1, Q("24.5 in")))
sketch8.addConstraint(Sketcher.Constraint("DistanceY", 0, 1, 0, 2, Q("14.25 in")))
sketch8.addConstraint(Sketcher.Constraint("DistanceX", -1, 1, 0, 2, 25.39872))
sketch8.addConstraint(Sketcher.Constraint("DistanceY", -1, 1, 0, 2, 302.241207))
pad7 = doc.addObject("PartDesign::Pad", "Pad006")
body7.addObject(pad7)
pad7.Profile = sketch8
pad7.Length = Q("0.5 in")
body8 = doc.addObject("PartDesign::Body", "Body007")

# Sketch on XY plane
sketch9 = doc.addObject("Sketcher::SketchObject", "Sketch008")
body8.addObject(sketch9)
sketch9.AttachmentSupport = (doc.getObject("XY_Plane007"), [""])
sketch9.MapMode = "FlatFace"
sketch9.AttachmentOffset = App.Placement(App.Vector(0, 0, -27.5 * 25.4), App.Rotation())
sketch9.addGeometry(Part.LineSegment(App.Vector(25, -60, 0), App.Vector(25, 302, 0)), False)
sketch9.addGeometry(Part.LineSegment(App.Vector(25, 302, 0), App.Vector(-394, 302, 0)), False)
sketch9.addGeometry(Part.LineSegment(App.Vector(-394, 302, 0), App.Vector(-394, -320, 0)), False)
sketch9.addGeometry(Part.LineSegment(App.Vector(-394, -320, 0), App.Vector(-356, -320, 0)), False)
sketch9.addGeometry(Part.LineSegment(App.Vector(-356, -320, 0), App.Vector(25, -60, 0)), False)
sketch9.addConstraint(Sketcher.Constraint("Coincident", 0, 2, 1, 1))
sketch9.addConstraint(Sketcher.Constraint("Coincident", 1, 2, 2, 1))
sketch9.addConstraint(Sketcher.Constraint("Coincident", 2, 2, 3, 1))
sketch9.addConstraint(Sketcher.Constraint("Coincident", 3, 2, 4, 1))
sketch9.addConstraint(Sketcher.Constraint("Coincident", 4, 2, 0, 1))
sketch9.addConstraint(Sketcher.Constraint("Vertical", 0))
sketch9.addConstraint(Sketcher.Constraint("Horizontal", 1))
sketch9.addConstraint(Sketcher.Constraint("Vertical", 2))
sketch9.addConstraint(Sketcher.Constraint("Horizontal", 3))
sketch9.addConstraint(Sketcher.Constraint("DistanceX", 1, 2, 1, 1, Q("16.5 in")))
sketch9.addConstraint(Sketcher.Constraint("DistanceX", 3, 1, 3, 2, Q("1.5 in")))
sketch9.addConstraint(Sketcher.Constraint("DistanceY", 2, 2, 2, 1, Q("24.5 in")))
sketch9.addConstraint(Sketcher.Constraint("DistanceY", 0, 1, 0, 2, Q("14.25 in")))
sketch9.addConstraint(Sketcher.Constraint("DistanceX", -1, 1, 0, 2, 25.39872))
sketch9.addConstraint(Sketcher.Constraint("DistanceY", -1, 1, 0, 2, 302.241207))
pad8 = doc.addObject("PartDesign::Pad", "Pad007")
body8.addObject(pad8)
pad8.Profile = sketch9
pad8.Length = Q("0.5 in")
body9 = doc.addObject("PartDesign::Body", "Body008")

# Sketch on XY plane
sketch10 = doc.addObject("Sketcher::SketchObject", "Sketch009")
body9.addObject(sketch10)
sketch10.AttachmentSupport = (doc.getObject("XY_Plane008"), [""])
sketch10.MapMode = "FlatFace"
sketch10.AttachmentOffset = App.Placement(App.Vector(0, 0, -12 * 25.4), App.Rotation())
sketch10.addGeometry(Part.LineSegment(App.Vector(1118, 302, 0), App.Vector(698, 302, 0)), False)
sketch10.addGeometry(Part.LineSegment(App.Vector(698, 302, 0), App.Vector(698, -60, 0)), False)
sketch10.addGeometry(Part.LineSegment(App.Vector(698, -60, 0), App.Vector(1079, -320, 0)), False)
sketch10.addGeometry(Part.LineSegment(App.Vector(1079, -320, 0), App.Vector(1118, -320, 0)), False)
sketch10.addGeometry(Part.LineSegment(App.Vector(1118, -320, 0), App.Vector(1118, 302, 0)), False)
sketch10.addConstraint(Sketcher.Constraint("Coincident", 0, 2, 1, 1))
sketch10.addConstraint(Sketcher.Constraint("Coincident", 1, 2, 2, 1))
sketch10.addConstraint(Sketcher.Constraint("Coincident", 2, 2, 3, 1))
sketch10.addConstraint(Sketcher.Constraint("Coincident", 3, 2, 4, 1))
sketch10.addConstraint(Sketcher.Constraint("Coincident", 4, 2, 0, 1))
sketch10.addConstraint(Sketcher.Constraint("Horizontal", 0))
sketch10.addConstraint(Sketcher.Constraint("Vertical", 1))
sketch10.addConstraint(Sketcher.Constraint("Horizontal", 3))
sketch10.addConstraint(Sketcher.Constraint("Vertical", 4))
sketch10.addConstraint(Sketcher.Constraint("DistanceX", 0, 2, 0, 1, Q("16.5 in")))
sketch10.addConstraint(Sketcher.Constraint("DistanceX", 3, 1, 3, 2, Q("1.5 in")))
sketch10.addConstraint(Sketcher.Constraint("DistanceY", 4, 1, 4, 2, Q("24.5 in")))
sketch10.addConstraint(Sketcher.Constraint("DistanceY", 1, 2, 1, 1, Q("14.25 in")))
sketch10.addConstraint(Sketcher.Constraint("DistanceX", -1, 1, 0, 2, 698.49872))
sketch10.addConstraint(Sketcher.Constraint("DistanceY", -1, 1, 0, 2, 302.241207))
pad9 = doc.addObject("PartDesign::Pad", "Pad008")
body9.addObject(pad9)
pad9.Profile = sketch10
pad9.Length = Q("0.5 in")
body10 = doc.addObject("PartDesign::Body", "Body009")

# Sketch on XY plane
sketch11 = doc.addObject("Sketcher::SketchObject", "Sketch010")
body10.addObject(sketch11)
sketch11.AttachmentSupport = (doc.getObject("XY_Plane009"), [""])
sketch11.MapMode = "FlatFace"
sketch11.AttachmentOffset = App.Placement(App.Vector(0, 0, -27.5 * 25.4), App.Rotation())
sketch11.addGeometry(Part.LineSegment(App.Vector(1118, 302, 0), App.Vector(698, 302, 0)), False)
sketch11.addGeometry(Part.LineSegment(App.Vector(698, 302, 0), App.Vector(698, -60, 0)), False)
sketch11.addGeometry(Part.LineSegment(App.Vector(698, -60, 0), App.Vector(1079, -320, 0)), False)
sketch11.addGeometry(Part.LineSegment(App.Vector(1079, -320, 0), App.Vector(1118, -320, 0)), False)
sketch11.addGeometry(Part.LineSegment(App.Vector(1118, -320, 0), App.Vector(1118, 302, 0)), False)
sketch11.addConstraint(Sketcher.Constraint("Coincident", 0, 2, 1, 1))
sketch11.addConstraint(Sketcher.Constraint("Coincident", 1, 2, 2, 1))
sketch11.addConstraint(Sketcher.Constraint("Coincident", 2, 2, 3, 1))
sketch11.addConstraint(Sketcher.Constraint("Coincident", 3, 2, 4, 1))
sketch11.addConstraint(Sketcher.Constraint("Coincident", 4, 2, 0, 1))
sketch11.addConstraint(Sketcher.Constraint("Horizontal", 0))
sketch11.addConstraint(Sketcher.Constraint("Vertical", 1))
sketch11.addConstraint(Sketcher.Constraint("Horizontal", 3))
sketch11.addConstraint(Sketcher.Constraint("Vertical", 4))
sketch11.addConstraint(Sketcher.Constraint("DistanceX", 0, 2, 0, 1, Q("16.5 in")))
sketch11.addConstraint(Sketcher.Constraint("DistanceX", 3, 1, 3, 2, Q("1.5 in")))
sketch11.addConstraint(Sketcher.Constraint("DistanceY", 4, 1, 4, 2, Q("24.5 in")))
sketch11.addConstraint(Sketcher.Constraint("DistanceY", 1, 2, 1, 1, Q("14.25 in")))
sketch11.addConstraint(Sketcher.Constraint("DistanceX", -1, 1, 0, 2, 698.49872))
sketch11.addConstraint(Sketcher.Constraint("DistanceY", -1, 1, 0, 2, 302.241207))
pad10 = doc.addObject("PartDesign::Pad", "Pad009")
body10.addObject(pad10)
pad10.Profile = sketch11
pad10.Length = Q("0.5 in")
body11 = doc.addObject("PartDesign::Body", "Body010")

# Sketch on XZ plane
sketch12 = doc.addObject("Sketcher::SketchObject", "Sketch011")
body11.addObject(sketch12)
sketch12.AttachmentSupport = (doc.getObject("XZ_Plane010"), [""])
sketch12.MapMode = "FlatFace"
sketch12.AttachmentOffset = App.Placement(App.Vector(0, 0, -302.241207), App.Rotation())
sketch12.addGeometry(Part.LineSegment(App.Vector(1156, -25, 0), App.Vector(1156, -787, 0)), False)
sketch12.addGeometry(Part.LineSegment(App.Vector(1156, -787, 0), App.Vector(660, -787, 0)), False)
sketch12.addGeometry(Part.LineSegment(App.Vector(660, -787, 0), App.Vector(660, -25, 0)), False)
sketch12.addGeometry(Part.LineSegment(App.Vector(660, -25, 0), App.Vector(1156, -25, 0)), False)
sketch12.addConstraint(Sketcher.Constraint("Coincident", 0, 2, 1, 1))
sketch12.addConstraint(Sketcher.Constraint("Coincident", 1, 2, 2, 1))
sketch12.addConstraint(Sketcher.Constraint("Coincident", 2, 2, 3, 1))
sketch12.addConstraint(Sketcher.Constraint("Coincident", 3, 2, 0, 1))
sketch12.addConstraint(Sketcher.Constraint("Vertical", 0))
sketch12.addConstraint(Sketcher.Constraint("Horizontal", 1))
sketch12.addConstraint(Sketcher.Constraint("Vertical", 2))
sketch12.addConstraint(Sketcher.Constraint("Horizontal", 3))
sketch12.addConstraint(Sketcher.Constraint("DistanceY", 0, 2, 0, 1, Q("30 in")))
sketch12.addConstraint(Sketcher.Constraint("DistanceX", 1, 2, 1, 1, Q("19.5 in")))
sketch12.addConstraint(Sketcher.Constraint("DistanceY", 0, 2, -1, 1, Q("31 in")))
sketch12.addConstraint(Sketcher.Constraint("DistanceX", -1, 1, 0, 2, 1155.69872))
pad11 = doc.addObject("PartDesign::Pad", "Pad010")
body11.addObject(pad11)
pad11.Profile = sketch12
pad11.Length = Q("0.5 in")
pad11.Reversed = True
body12 = doc.addObject("PartDesign::Body", "Body011")

# Sketch on XZ plane
sketch13 = doc.addObject("Sketcher::SketchObject", "Sketch012")
body12.addObject(sketch13)
sketch13.AttachmentSupport = (doc.getObject("XZ_Plane011"), [""])
sketch13.MapMode = "FlatFace"
sketch13.AttachmentOffset = App.Placement(App.Vector(0, 0, -302.241207), App.Rotation())
sketch13.addGeometry(Part.LineSegment(App.Vector(63, -25, 0), App.Vector(63, -787, 0)), False)
sketch13.addGeometry(Part.LineSegment(App.Vector(63, -787, 0), App.Vector(-432, -787, 0)), False)
sketch13.addGeometry(Part.LineSegment(App.Vector(-432, -787, 0), App.Vector(-432, -25, 0)), False)
sketch13.addGeometry(Part.LineSegment(App.Vector(-432, -25, 0), App.Vector(63, -25, 0)), False)
sketch13.addConstraint(Sketcher.Constraint("Coincident", 0, 2, 1, 1))
sketch13.addConstraint(Sketcher.Constraint("Coincident", 1, 2, 2, 1))
sketch13.addConstraint(Sketcher.Constraint("Coincident", 2, 2, 3, 1))
sketch13.addConstraint(Sketcher.Constraint("Coincident", 3, 2, 0, 1))
sketch13.addConstraint(Sketcher.Constraint("Vertical", 0))
sketch13.addConstraint(Sketcher.Constraint("Horizontal", 1))
sketch13.addConstraint(Sketcher.Constraint("Vertical", 2))
sketch13.addConstraint(Sketcher.Constraint("Horizontal", 3))
sketch13.addConstraint(Sketcher.Constraint("DistanceY", 0, 2, 0, 1, Q("30 in")))
sketch13.addConstraint(Sketcher.Constraint("DistanceX", 1, 2, 1, 1, Q("19.5 in")))
sketch13.addConstraint(Sketcher.Constraint("DistanceY", 0, 2, -1, 1, Q("31 in")))
sketch13.addConstraint(Sketcher.Constraint("DistanceX", -1, 1, 0, 2, 63.49872))
pad12 = doc.addObject("PartDesign::Pad", "Pad011")
body12.addObject(pad12)
pad12.Profile = sketch13
pad12.Length = Q("0.5 in")
pad12.Reversed = True
body13 = doc.addObject("PartDesign::Body", "Body012")

# Sketch on YZ plane
sketch14 = doc.addObject("Sketcher::SketchObject", "Sketch013")
body13.addObject(sketch14)
sketch14.AttachmentSupport = (doc.getObject("YZ_Plane012"), [""])
sketch14.MapMode = "FlatFace"
sketch14.AttachmentOffset = App.Placement(App.Vector(0, 0, -393.70128), App.Rotation())
sketch14.addGeometry(Part.LineSegment(App.Vector(-320, -394, 0), App.Vector(-320, -686, 0)), False)
sketch14.addGeometry(Part.LineSegment(App.Vector(-320, -686, 0), App.Vector(302, -686, 0)), False)
sketch14.addGeometry(Part.LineSegment(App.Vector(302, -686, 0), App.Vector(302, -394, 0)), False)
sketch14.addGeometry(Part.LineSegment(App.Vector(302, -394, 0), App.Vector(-320, -394, 0)), False)
sketch14.addConstraint(Sketcher.Constraint("Coincident", 0, 2, 1, 1))
sketch14.addConstraint(Sketcher.Constraint("Coincident", 1, 2, 2, 1))
sketch14.addConstraint(Sketcher.Constraint("Coincident", 2, 2, 3, 1))
sketch14.addConstraint(Sketcher.Constraint("Coincident", 3, 2, 0, 1))
sketch14.addConstraint(Sketcher.Constraint("Vertical", 0))
sketch14.addConstraint(Sketcher.Constraint("Horizontal", 1))
sketch14.addConstraint(Sketcher.Constraint("Vertical", 2))
sketch14.addConstraint(Sketcher.Constraint("Horizontal", 3))
sketch14.addConstraint(Sketcher.Constraint("DistanceX", 1, 1, 1, 2, Q("24.5 in")))
sketch14.addConstraint(Sketcher.Constraint("DistanceY", 0, 2, 0, 1, Q("11.5 in")))
sketch14.addConstraint(Sketcher.Constraint("DistanceY", 0, 2, -1, 1, Q("27 in")))
sketch14.addConstraint(Sketcher.Constraint("DistanceX", 0, 2, -1, 1, 320.058793))
pad13 = doc.addObject("PartDesign::Pad", "Pad012")
body13.addObject(pad13)
pad13.Profile = sketch14
pad13.Length = Q("0.5 in")
body14 = doc.addObject("PartDesign::Body", "Body013")

# Sketch on YZ plane
sketch15 = doc.addObject("Sketcher::SketchObject", "Sketch014")
body14.addObject(sketch15)
sketch15.AttachmentSupport = (doc.getObject("YZ_Plane013"), [""])
sketch15.MapMode = "FlatFace"
sketch15.AttachmentOffset = App.Placement(App.Vector(0, 0, 25.39872), App.Rotation())
sketch15.addGeometry(Part.LineSegment(App.Vector(302, -394, 0), App.Vector(302, -686, 0)), False)
sketch15.addGeometry(Part.LineSegment(App.Vector(302, -686, 0), App.Vector(-60, -686, 0)), False)
sketch15.addGeometry(Part.LineSegment(App.Vector(-60, -686, 0), App.Vector(-60, -394, 0)), False)
sketch15.addGeometry(Part.LineSegment(App.Vector(-60, -394, 0), App.Vector(302, -394, 0)), False)
sketch15.addConstraint(Sketcher.Constraint("Coincident", 0, 2, 1, 1))
sketch15.addConstraint(Sketcher.Constraint("Coincident", 1, 2, 2, 1))
sketch15.addConstraint(Sketcher.Constraint("Coincident", 2, 2, 3, 1))
sketch15.addConstraint(Sketcher.Constraint("Coincident", 3, 2, 0, 1))
sketch15.addConstraint(Sketcher.Constraint("Vertical", 0))
sketch15.addConstraint(Sketcher.Constraint("Horizontal", 1))
sketch15.addConstraint(Sketcher.Constraint("Vertical", 2))
sketch15.addConstraint(Sketcher.Constraint("Horizontal", 3))
sketch15.addConstraint(Sketcher.Constraint("DistanceY", 0, 2, 0, 1, Q("11.5 in")))
sketch15.addConstraint(Sketcher.Constraint("DistanceY", 0, 2, -1, 1, Q("27 in")))
sketch15.addConstraint(Sketcher.Constraint("DistanceX", 1, 2, 1, 1, Q("14.25 in")))
sketch15.addConstraint(Sketcher.Constraint("DistanceX", -1, 1, 0, 2, 302.241207))
pad14 = doc.addObject("PartDesign::Pad", "Pad013")
body14.addObject(pad14)
pad14.Profile = sketch15
pad14.Length = Q("0.5 in")
pad14.Reversed = True
body15 = doc.addObject("PartDesign::Body", "Body014")

# Sketch on YZ plane
sketch16 = doc.addObject("Sketcher::SketchObject", "Sketch015")
body15.addObject(sketch16)
sketch16.AttachmentSupport = (doc.getObject("YZ_Plane014"), [""])
sketch16.MapMode = "FlatFace"
sketch16.AttachmentOffset = App.Placement(App.Vector(0, 0, 698.49872), App.Rotation())
sketch16.addGeometry(Part.LineSegment(App.Vector(-60, -394, 0), App.Vector(-60, -686, 0)), False)
sketch16.addGeometry(Part.LineSegment(App.Vector(-60, -686, 0), App.Vector(302, -686, 0)), False)
sketch16.addGeometry(Part.LineSegment(App.Vector(302, -686, 0), App.Vector(302, -394, 0)), False)
sketch16.addGeometry(Part.LineSegment(App.Vector(302, -394, 0), App.Vector(-60, -394, 0)), False)
sketch16.addConstraint(Sketcher.Constraint("Coincident", 0, 2, 1, 1))
sketch16.addConstraint(Sketcher.Constraint("Coincident", 1, 2, 2, 1))
sketch16.addConstraint(Sketcher.Constraint("Coincident", 2, 2, 3, 1))
sketch16.addConstraint(Sketcher.Constraint("Coincident", 3, 2, 0, 1))
sketch16.addConstraint(Sketcher.Constraint("Vertical", 0))
sketch16.addConstraint(Sketcher.Constraint("Horizontal", 1))
sketch16.addConstraint(Sketcher.Constraint("Vertical", 2))
sketch16.addConstraint(Sketcher.Constraint("Horizontal", 3))
sketch16.addConstraint(Sketcher.Constraint("DistanceY", 0, 2, 0, 1, Q("11.5 in")))
sketch16.addConstraint(Sketcher.Constraint("DistanceY", 0, 2, -1, 1, Q("27 in")))
sketch16.addConstraint(Sketcher.Constraint("DistanceX", 1, 1, 1, 2, Q("14.25 in")))
sketch16.addConstraint(Sketcher.Constraint("DistanceX", 0, 2, -1, 1, 59.708793))
pad15 = doc.addObject("PartDesign::Pad", "Pad014")
body15.addObject(pad15)
pad15.Profile = sketch16
pad15.Length = Q("0.5 in")
body16 = doc.addObject("PartDesign::Body", "Body015")

# Sketch on YZ plane
sketch17 = doc.addObject("Sketcher::SketchObject", "Sketch016")
body16.addObject(sketch17)
sketch17.AttachmentSupport = (doc.getObject("YZ_Plane015"), [""])
sketch17.MapMode = "FlatFace"
sketch17.AttachmentOffset = App.Placement(App.Vector(0, 0, 1117.59872), App.Rotation())
sketch17.addGeometry(Part.LineSegment(App.Vector(302, -394, 0), App.Vector(302, -686, 0)), False)
sketch17.addGeometry(Part.LineSegment(App.Vector(302, -686, 0), App.Vector(-320, -686, 0)), False)
sketch17.addGeometry(Part.LineSegment(App.Vector(-320, -686, 0), App.Vector(-320, -394, 0)), False)
sketch17.addGeometry(Part.LineSegment(App.Vector(-320, -394, 0), App.Vector(302, -394, 0)), False)
sketch17.addConstraint(Sketcher.Constraint("Coincident", 0, 2, 1, 1))
sketch17.addConstraint(Sketcher.Constraint("Coincident", 1, 2, 2, 1))
sketch17.addConstraint(Sketcher.Constraint("Coincident", 2, 2, 3, 1))
sketch17.addConstraint(Sketcher.Constraint("Coincident", 3, 2, 0, 1))
sketch17.addConstraint(Sketcher.Constraint("Vertical", 0))
sketch17.addConstraint(Sketcher.Constraint("Horizontal", 1))
sketch17.addConstraint(Sketcher.Constraint("Vertical", 2))
sketch17.addConstraint(Sketcher.Constraint("Horizontal", 3))
sketch17.addConstraint(Sketcher.Constraint("DistanceX", 1, 2, 1, 1, Q("24.5 in")))
sketch17.addConstraint(Sketcher.Constraint("DistanceY", 0, 2, 0, 1, Q("11.5 in")))
sketch17.addConstraint(Sketcher.Constraint("DistanceY", 0, 2, -1, 1, Q("27 in")))
sketch17.addConstraint(Sketcher.Constraint("DistanceX", -1, 1, 0, 2, 302.241207))
pad16 = doc.addObject("PartDesign::Pad", "Pad015")
body16.addObject(pad16)
pad16.Profile = sketch17
pad16.Length = Q("0.5 in")
pad16.Reversed = True

doc.recompute()
